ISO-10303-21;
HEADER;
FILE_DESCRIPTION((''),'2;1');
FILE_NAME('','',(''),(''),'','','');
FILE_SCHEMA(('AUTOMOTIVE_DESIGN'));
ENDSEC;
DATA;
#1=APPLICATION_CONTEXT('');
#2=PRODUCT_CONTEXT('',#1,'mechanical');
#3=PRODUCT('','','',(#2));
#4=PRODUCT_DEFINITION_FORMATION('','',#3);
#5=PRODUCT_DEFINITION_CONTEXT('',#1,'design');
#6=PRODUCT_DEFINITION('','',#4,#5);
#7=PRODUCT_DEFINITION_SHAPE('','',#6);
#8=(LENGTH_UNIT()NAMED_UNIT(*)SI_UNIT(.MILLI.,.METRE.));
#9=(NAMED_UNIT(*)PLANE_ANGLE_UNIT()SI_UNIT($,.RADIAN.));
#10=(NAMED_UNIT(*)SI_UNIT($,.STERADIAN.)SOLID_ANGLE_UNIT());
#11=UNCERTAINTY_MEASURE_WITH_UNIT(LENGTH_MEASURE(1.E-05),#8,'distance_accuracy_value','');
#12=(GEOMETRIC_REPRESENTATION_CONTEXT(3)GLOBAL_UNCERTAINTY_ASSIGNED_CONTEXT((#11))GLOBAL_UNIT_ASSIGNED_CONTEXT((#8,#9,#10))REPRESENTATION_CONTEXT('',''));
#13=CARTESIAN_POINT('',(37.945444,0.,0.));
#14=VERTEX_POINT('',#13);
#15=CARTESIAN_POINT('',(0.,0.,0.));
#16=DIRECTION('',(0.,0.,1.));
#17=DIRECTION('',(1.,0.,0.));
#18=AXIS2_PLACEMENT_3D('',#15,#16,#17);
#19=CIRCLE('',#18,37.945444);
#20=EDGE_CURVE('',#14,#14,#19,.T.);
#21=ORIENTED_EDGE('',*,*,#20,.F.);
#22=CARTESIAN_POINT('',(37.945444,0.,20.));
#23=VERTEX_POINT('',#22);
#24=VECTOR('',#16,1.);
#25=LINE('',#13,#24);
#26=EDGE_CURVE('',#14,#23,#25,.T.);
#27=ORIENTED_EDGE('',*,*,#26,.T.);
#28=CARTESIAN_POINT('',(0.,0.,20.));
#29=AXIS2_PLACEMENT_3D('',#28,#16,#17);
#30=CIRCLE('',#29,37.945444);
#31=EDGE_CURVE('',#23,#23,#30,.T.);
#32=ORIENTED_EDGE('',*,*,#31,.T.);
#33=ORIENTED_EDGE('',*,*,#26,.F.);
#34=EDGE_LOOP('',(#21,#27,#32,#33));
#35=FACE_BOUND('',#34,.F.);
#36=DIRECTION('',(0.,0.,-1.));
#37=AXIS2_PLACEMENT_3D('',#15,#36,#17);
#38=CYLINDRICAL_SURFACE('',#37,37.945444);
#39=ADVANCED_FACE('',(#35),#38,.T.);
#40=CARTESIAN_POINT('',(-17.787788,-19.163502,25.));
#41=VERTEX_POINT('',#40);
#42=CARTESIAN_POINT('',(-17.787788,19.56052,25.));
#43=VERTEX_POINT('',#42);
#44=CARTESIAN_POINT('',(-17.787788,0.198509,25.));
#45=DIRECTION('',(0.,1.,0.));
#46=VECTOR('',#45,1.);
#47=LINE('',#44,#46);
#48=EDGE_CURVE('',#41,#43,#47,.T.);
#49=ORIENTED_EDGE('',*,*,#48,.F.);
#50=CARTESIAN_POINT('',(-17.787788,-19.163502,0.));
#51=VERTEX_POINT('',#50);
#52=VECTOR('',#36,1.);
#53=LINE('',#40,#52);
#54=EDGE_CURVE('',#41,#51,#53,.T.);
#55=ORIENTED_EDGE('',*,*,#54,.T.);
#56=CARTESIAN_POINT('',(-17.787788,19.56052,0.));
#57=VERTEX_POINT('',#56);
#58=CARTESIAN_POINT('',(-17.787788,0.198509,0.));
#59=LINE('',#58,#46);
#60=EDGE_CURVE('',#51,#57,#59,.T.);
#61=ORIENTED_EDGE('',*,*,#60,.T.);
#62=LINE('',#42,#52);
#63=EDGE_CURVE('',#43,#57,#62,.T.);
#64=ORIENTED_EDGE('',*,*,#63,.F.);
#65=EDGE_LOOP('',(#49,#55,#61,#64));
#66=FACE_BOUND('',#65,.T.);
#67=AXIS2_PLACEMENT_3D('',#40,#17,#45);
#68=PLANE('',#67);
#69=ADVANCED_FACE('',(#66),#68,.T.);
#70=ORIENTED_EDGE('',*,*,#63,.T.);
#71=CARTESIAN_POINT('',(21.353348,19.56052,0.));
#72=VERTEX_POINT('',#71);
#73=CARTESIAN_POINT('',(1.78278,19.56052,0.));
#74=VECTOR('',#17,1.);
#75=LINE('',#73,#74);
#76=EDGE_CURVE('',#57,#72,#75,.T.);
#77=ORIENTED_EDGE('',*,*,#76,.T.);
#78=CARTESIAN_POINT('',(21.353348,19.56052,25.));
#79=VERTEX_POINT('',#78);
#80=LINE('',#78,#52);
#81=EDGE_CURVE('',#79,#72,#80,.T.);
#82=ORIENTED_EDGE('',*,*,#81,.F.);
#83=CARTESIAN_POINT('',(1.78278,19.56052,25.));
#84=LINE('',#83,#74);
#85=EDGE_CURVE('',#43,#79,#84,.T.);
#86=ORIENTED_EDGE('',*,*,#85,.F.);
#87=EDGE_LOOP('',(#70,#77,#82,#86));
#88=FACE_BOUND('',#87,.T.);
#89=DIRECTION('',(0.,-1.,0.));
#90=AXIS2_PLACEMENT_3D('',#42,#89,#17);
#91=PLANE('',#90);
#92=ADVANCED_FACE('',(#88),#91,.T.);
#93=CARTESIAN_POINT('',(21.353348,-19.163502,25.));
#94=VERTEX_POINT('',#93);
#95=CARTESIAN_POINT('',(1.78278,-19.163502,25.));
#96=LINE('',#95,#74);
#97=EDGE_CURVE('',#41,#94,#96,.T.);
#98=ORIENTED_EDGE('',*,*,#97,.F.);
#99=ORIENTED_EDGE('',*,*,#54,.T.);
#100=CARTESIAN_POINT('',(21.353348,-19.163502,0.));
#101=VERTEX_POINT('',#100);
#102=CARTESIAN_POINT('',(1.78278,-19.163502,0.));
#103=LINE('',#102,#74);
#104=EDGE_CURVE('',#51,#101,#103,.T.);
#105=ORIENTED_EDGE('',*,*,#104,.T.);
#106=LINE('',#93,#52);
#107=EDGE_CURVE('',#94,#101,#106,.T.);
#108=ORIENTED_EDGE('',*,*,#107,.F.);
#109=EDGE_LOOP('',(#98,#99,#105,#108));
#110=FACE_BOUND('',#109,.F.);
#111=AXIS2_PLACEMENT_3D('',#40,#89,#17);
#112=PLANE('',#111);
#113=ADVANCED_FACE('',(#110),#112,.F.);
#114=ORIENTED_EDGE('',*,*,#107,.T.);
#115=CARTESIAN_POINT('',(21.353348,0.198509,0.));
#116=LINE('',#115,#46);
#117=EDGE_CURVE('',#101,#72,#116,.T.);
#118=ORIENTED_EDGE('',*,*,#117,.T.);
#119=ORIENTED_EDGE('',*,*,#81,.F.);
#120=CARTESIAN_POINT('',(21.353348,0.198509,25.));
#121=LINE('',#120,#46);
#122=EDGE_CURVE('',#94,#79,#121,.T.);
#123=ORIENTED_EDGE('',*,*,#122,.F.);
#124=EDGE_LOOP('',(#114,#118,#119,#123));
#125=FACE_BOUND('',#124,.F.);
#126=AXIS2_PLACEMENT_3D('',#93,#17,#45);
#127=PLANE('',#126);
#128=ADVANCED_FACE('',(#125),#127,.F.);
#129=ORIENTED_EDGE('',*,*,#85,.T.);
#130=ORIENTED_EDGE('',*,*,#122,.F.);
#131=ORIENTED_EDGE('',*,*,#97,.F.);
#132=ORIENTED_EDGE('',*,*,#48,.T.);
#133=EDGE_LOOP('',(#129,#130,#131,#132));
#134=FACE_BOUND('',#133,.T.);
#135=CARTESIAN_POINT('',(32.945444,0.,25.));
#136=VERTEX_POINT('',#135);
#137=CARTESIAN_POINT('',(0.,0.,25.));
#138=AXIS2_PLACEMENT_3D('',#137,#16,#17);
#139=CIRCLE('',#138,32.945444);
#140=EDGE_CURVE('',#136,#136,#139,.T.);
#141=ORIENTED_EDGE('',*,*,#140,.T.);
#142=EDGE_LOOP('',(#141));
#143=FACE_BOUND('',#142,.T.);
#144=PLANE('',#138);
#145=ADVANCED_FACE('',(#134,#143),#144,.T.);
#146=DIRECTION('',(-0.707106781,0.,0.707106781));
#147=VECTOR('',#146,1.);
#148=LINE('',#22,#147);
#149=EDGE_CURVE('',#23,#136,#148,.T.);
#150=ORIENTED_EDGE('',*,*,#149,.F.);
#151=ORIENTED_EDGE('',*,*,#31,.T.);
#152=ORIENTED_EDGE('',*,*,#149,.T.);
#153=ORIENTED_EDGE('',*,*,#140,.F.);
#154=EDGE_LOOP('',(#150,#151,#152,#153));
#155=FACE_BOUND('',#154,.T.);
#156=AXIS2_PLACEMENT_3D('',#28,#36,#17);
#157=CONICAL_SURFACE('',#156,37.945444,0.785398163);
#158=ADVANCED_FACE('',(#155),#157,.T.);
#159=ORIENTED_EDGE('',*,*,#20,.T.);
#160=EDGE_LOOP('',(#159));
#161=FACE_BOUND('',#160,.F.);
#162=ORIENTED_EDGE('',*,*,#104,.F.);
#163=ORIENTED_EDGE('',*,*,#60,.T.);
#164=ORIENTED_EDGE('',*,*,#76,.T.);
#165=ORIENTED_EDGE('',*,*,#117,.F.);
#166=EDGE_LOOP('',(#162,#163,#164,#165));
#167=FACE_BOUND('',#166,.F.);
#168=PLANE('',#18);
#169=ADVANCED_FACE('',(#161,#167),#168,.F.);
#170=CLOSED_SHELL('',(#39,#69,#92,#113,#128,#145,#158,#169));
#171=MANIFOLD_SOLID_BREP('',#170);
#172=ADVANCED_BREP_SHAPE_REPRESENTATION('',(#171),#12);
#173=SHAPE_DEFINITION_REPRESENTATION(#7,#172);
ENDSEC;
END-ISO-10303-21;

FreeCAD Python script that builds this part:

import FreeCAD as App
import Part
import Sketcher
from FreeCAD import Vector
Q = App.Units.Quantity


def edges_at(feature, points):
    """Names of the edges that pass closest to the given points."""
    edges = feature.Shape.Edges
    near = lambda p: min(range(len(edges)), key=lambda i: edges[i].distToShape(Part.Vertex(*p))[0])
    return sorted({f"Edge{near(p) + 1}" for p in points})


def add_polygon(sketch, points):
    """Adds a closed chain of lines whose ends are joined by coincident constraints."""
    first, n = sketch.GeometryCount, len(points)
    for a, b in zip(points, points[1:] + points[:1]):
        sketch.addGeometry(Part.LineSegment(App.Vector(*a, 0), App.Vector(*b, 0)), False)
    for i in range(n):
        sketch.addConstraint(Sketcher.Constraint("Coincident", first + i, 2, first + (i + 1) % n, 1))

doc = App.newDocument("Part")
body = doc.addObject("PartDesign::Body", "Body")

# Sketch on XY plane
sketch1 = doc.addObject("Sketcher::SketchObject", "Sketch")
body.addObject(sketch1)
sketch1.AttachmentSupport = (doc.XY_Plane, [""])
sketch1.MapMode = "FlatFace"
sketch1.addGeometry(Part.Circle(Vector(0, 0, 0), Vector(0, 0, 1), 38), False)
sketch1.addConstraint(Sketcher.Constraint("Coincident", 0, 3, -1, 1))
sketch1.addConstraint(Sketcher.Constraint("Diameter", 0, Q("75.890888 mm")))
pad1 = doc.addObject("PartDesign::Pad", "Pad")
body.addObject(pad1)
pad1.Profile = sketch1
pad1.Length = 25

# Sketch on XY plane
sketch2 = doc.addObject("Sketcher::SketchObject", "Sketch001")
body.addObject(sketch2)
sketch2.AttachmentSupport = (doc.XY_Plane, [""])
sketch2.MapMode = "FlatFace"
sketch2.AttachmentOffset = App.Placement(Vector(0, 0, 25), App.Rotation())
add_polygon(sketch2, [(-18, 20), (-18, -19), (21, -19), (21, 20)])  # lines 0-3
sketch2.addConstraint(Sketcher.Constraint("Vertical", 0))
sketch2.addConstraint(Sketcher.Constraint("Horizontal", 1))
sketch2.addConstraint(Sketcher.Constraint("Vertical", 2))
sketch2.addConstraint(Sketcher.Constraint("Horizontal", 3))
sketch2.addConstraint(Sketcher.Constraint("DistanceX", 1, 1, 1, 2, Q("39.141135 mm")))
sketch2.addConstraint(Sketcher.Constraint("DistanceY", 0, 2, 0, 1, Q("38.724022 mm")))
sketch2.addConstraint(Sketcher.Constraint("DistanceY", -1, 1, 2, 2, Q("19.56052 mm")))
sketch2.addConstraint(Sketcher.Constraint("DistanceX", 0, 2, -1, 1, Q("17.787788 mm")))
pocket1 = doc.addObject("PartDesign::Pocket", "Pocket")
body.addObject(pocket1)
pocket1.Profile = sketch2
pocket1.Length = 25
doc.recompute()

chamfer = doc.addObject("PartDesign::Chamfer", "Chamfer")
body.addObject(chamfer)
chamfer.Base = (pocket1, edges_at(pocket1, [(-37.945, 0, 25)]))
chamfer.Size = 5

doc.recompute()
